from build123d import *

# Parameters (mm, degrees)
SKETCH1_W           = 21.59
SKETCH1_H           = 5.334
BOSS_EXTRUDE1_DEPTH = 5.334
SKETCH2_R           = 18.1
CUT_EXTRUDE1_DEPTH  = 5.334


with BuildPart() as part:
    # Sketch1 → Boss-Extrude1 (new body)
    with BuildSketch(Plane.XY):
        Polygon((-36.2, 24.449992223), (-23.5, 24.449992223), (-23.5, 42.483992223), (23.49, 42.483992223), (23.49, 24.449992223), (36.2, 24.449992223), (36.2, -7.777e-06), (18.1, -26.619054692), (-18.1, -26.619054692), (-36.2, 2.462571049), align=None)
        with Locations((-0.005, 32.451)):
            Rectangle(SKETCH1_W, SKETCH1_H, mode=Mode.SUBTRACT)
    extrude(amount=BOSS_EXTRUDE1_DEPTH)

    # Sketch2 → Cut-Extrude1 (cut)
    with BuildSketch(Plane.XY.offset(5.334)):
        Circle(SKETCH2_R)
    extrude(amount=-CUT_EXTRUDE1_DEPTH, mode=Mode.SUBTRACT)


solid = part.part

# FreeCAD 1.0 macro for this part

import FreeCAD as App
import Part
import Sketcher
Q = App.Units.Quantity

doc = App.newDocument("Part")
body = doc.addObject("PartDesign::Body", "Body")

sketch1 = body.newObject("Sketcher::SketchObject", "Sketch")
sketch1.AttachmentSupport = (doc.getObject("XY_Plane"), [""])
sketch1.MapMode = "FlatFace"
sketch1.addGeometry(Part.LineSegment(App.Vector(-24, 24, 0), App.Vector(-36, 24, 0)), False)
sketch1.addGeometry(Part.LineSegment(App.Vector(-36, 24, 0), App.Vector(-36, 2, 0)), False)
sketch1.addGeometry(Part.LineSegment(App.Vector(-36, 2, 0), App.Vector(-18, -27, 0)), False)
sketch1.addGeometry(Part.LineSegment(App.Vector(-18, -27, 0), App.Vector(18, -27, 0)), False)
sketch1.addGeometry(Part.LineSegment(App.Vector(18, -27, 0), App.Vector(36, 0, 0)), False)
sketch1.addGeometry(Part.LineSegment(App.Vector(36, 0, 0), App.Vector(36, 24, 0)), False)
sketch1.addGeometry(Part.LineSegment(App.Vector(36, 24, 0), App.Vector(23, 24, 0)), False)
sketch1.addGeometry(Part.LineSegment(App.Vector(23, 24, 0), App.Vector(23, 42, 0)), False)
sketch1.addGeometry(Part.LineSegment(App.Vector(23, 42, 0), App.Vector(-24, 42, 0)), False)
sketch1.addGeometry(Part.LineSegment(App.Vector(-24, 42, 0), App.Vector(-24, 24, 0)), False)
sketch1.addGeometry(Part.LineSegment(App.Vector(-11, 30, 0), App.Vector(-11, 35, 0)), False)
sketch1.addGeometry(Part.LineSegment(App.Vector(-11, 35, 0), App.Vector(11, 35, 0)), False)
sketch1.addGeometry(Part.LineSegment(App.Vector(11, 35, 0), App.Vector(11, 30, 0)), False)
sketch1.addGeometry(Part.LineSegment(App.Vector(11, 30, 0), App.Vector(-11, 30, 0)), False)
sketch1.addConstraint(Sketcher.Constraint("Coincident", 0, 2, 1, 1))
sketch1.addConstraint(Sketcher.Constraint("Coincident", 1, 2, 2, 1))
sketch1.addConstraint(Sketcher.Constraint("Coincident", 2, 2, 3, 1))
sketch1.addConstraint(Sketcher.Constraint("Coincident", 3, 2, 4, 1))
sketch1.addConstraint(Sketcher.Constraint("Coincident", 4, 2, 5, 1))
sketch1.addConstraint(Sketcher.Constraint("Coincident", 5, 2, 6, 1))
sketch1.addConstraint(Sketcher.Constraint("Coincident", 6, 2, 7, 1))
sketch1.addConstraint(Sketcher.Constraint("Coincident", 7, 2, 8, 1))
sketch1.addConstraint(Sketcher.Constraint("Coincident", 8, 2, 9, 1))
sketch1.addConstraint(Sketcher.Constraint("Coincident", 9, 2, 0, 1))
sketch1.addConstraint(Sketcher.Constraint("Coincident", 10, 2, 11, 1))
sketch1.addConstraint(Sketcher.Constraint("Coincident", 11, 2, 12, 1))
sketch1.addConstraint(Sketcher.Constraint("Coincident", 12, 2, 13, 1))
sketch1.addConstraint(Sketcher.Constraint("Coincident", 13, 2, 10, 1))
sketch1.addConstraint(Sketcher.Constraint("Horizontal", 0))
sketch1.addConstraint(Sketcher.Constraint("Vertical", 1))
sketch1.addConstraint(Sketcher.Constraint("Horizontal", 3))
sketch1.addConstraint(Sketcher.Constraint("Vertical", 5))
sketch1.addConstraint(Sketcher.Constraint("Horizontal", 6))
sketch1.addConstraint(Sketcher.Constraint("Vertical", 7))
sketch1.addConstraint(Sketcher.Constraint("Horizontal", 8))
sketch1.addConstraint(Sketcher.Constraint("Vertical", 9))
sketch1.addConstraint(Sketcher.Constraint("Vertical", 10))
sketch1.addConstraint(Sketcher.Constraint("Horizontal", 11))
sketch1.addConstraint(Sketcher.Constraint("Vertical", 12))
sketch1.addConstraint(Sketcher.Constraint("Horizontal", 13))
sketch1.addConstraint(Sketcher.Constraint("Symmetric", 0, 2, 5, 2, -2))
sketch1.addConstraint(Sketcher.Constraint("DistanceX", 0, 2, 0, 1, Q("0.5 in")))
sketch1.addConstraint(Sketcher.Constraint("DistanceX", 0, 2, 10, 2, Q("1 in")))
sketch1.addConstraint(Sketcher.Constraint("DistanceX", 8, 2, 8, 1, Q("1.85 in")))
sketch1.addConstraint(Sketcher.Constraint("DistanceX", 11, 1, 11, 2, Q("0.85 in")))
sketch1.addConstraint(Sketcher.Constraint("DistanceY", 7, 1, 7, 2, Q("0.71 in")))
sketch1.addConstraint(Sketcher.Constraint("DistanceY", 10, 1, 10, 2, Q("0.21 in")))
sketch1.addConstraint(Sketcher.Constraint("DistanceX", 3, 1, 3, 2, 36.2))
sketch1.addConstraint(Sketcher.Constraint("DistanceX", 6, 2, 6, 1, 12.71))
sketch1.addConstraint(Sketcher.Constraint("DistanceY", 5, 1, 5, 2, 24.45))
sketch1.addConstraint(Sketcher.Constraint("DistanceY", 1, 2, 1, 1, 21.987421))
sketch1.addConstraint(Sketcher.Constraint("DistanceX", 2, 2, -1, 1, 18.1))
sketch1.addConstraint(Sketcher.Constraint("DistanceY", -1, 1, 10, 2, 35.118))
sketch1.addConstraint(Sketcher.Constraint("Distance", 2, 34.254211))
sketch1.addConstraint(Sketcher.Constraint("DistanceY", -1, 1, 1, 2, 2.462571))
pad1 = body.newObject("PartDesign::Pad", "Pad")
pad1.Profile = sketch1
pad1.Length = Q("0.21 in")

sketch2 = body.newObject("Sketcher::SketchObject", "Sketch001")
sketch2.AttachmentSupport = (doc.getObject("XY_Plane"), [""])
sketch2.MapMode = "FlatFace"
sketch2.AttachmentOffset = App.Placement(App.Vector(0, 0, 0.21 * 25.4), App.Rotation())
sketch2.addGeometry(Part.Circle(App.Vector(0, 0, 0), App.Vector(0, 0, 1), 18), False)
sketch2.addConstraint(Sketcher.Constraint("Coincident", 0, 3, -1, 1))
sketch2.addConstraint(Sketcher.Constraint("Diameter", 0, 36.2))
pocket1 = body.newObject("PartDesign::Pocket", "Pocket")
pocket1.Profile = sketch2
pocket1.Length = Q("0.21 in")

doc.recompute()
